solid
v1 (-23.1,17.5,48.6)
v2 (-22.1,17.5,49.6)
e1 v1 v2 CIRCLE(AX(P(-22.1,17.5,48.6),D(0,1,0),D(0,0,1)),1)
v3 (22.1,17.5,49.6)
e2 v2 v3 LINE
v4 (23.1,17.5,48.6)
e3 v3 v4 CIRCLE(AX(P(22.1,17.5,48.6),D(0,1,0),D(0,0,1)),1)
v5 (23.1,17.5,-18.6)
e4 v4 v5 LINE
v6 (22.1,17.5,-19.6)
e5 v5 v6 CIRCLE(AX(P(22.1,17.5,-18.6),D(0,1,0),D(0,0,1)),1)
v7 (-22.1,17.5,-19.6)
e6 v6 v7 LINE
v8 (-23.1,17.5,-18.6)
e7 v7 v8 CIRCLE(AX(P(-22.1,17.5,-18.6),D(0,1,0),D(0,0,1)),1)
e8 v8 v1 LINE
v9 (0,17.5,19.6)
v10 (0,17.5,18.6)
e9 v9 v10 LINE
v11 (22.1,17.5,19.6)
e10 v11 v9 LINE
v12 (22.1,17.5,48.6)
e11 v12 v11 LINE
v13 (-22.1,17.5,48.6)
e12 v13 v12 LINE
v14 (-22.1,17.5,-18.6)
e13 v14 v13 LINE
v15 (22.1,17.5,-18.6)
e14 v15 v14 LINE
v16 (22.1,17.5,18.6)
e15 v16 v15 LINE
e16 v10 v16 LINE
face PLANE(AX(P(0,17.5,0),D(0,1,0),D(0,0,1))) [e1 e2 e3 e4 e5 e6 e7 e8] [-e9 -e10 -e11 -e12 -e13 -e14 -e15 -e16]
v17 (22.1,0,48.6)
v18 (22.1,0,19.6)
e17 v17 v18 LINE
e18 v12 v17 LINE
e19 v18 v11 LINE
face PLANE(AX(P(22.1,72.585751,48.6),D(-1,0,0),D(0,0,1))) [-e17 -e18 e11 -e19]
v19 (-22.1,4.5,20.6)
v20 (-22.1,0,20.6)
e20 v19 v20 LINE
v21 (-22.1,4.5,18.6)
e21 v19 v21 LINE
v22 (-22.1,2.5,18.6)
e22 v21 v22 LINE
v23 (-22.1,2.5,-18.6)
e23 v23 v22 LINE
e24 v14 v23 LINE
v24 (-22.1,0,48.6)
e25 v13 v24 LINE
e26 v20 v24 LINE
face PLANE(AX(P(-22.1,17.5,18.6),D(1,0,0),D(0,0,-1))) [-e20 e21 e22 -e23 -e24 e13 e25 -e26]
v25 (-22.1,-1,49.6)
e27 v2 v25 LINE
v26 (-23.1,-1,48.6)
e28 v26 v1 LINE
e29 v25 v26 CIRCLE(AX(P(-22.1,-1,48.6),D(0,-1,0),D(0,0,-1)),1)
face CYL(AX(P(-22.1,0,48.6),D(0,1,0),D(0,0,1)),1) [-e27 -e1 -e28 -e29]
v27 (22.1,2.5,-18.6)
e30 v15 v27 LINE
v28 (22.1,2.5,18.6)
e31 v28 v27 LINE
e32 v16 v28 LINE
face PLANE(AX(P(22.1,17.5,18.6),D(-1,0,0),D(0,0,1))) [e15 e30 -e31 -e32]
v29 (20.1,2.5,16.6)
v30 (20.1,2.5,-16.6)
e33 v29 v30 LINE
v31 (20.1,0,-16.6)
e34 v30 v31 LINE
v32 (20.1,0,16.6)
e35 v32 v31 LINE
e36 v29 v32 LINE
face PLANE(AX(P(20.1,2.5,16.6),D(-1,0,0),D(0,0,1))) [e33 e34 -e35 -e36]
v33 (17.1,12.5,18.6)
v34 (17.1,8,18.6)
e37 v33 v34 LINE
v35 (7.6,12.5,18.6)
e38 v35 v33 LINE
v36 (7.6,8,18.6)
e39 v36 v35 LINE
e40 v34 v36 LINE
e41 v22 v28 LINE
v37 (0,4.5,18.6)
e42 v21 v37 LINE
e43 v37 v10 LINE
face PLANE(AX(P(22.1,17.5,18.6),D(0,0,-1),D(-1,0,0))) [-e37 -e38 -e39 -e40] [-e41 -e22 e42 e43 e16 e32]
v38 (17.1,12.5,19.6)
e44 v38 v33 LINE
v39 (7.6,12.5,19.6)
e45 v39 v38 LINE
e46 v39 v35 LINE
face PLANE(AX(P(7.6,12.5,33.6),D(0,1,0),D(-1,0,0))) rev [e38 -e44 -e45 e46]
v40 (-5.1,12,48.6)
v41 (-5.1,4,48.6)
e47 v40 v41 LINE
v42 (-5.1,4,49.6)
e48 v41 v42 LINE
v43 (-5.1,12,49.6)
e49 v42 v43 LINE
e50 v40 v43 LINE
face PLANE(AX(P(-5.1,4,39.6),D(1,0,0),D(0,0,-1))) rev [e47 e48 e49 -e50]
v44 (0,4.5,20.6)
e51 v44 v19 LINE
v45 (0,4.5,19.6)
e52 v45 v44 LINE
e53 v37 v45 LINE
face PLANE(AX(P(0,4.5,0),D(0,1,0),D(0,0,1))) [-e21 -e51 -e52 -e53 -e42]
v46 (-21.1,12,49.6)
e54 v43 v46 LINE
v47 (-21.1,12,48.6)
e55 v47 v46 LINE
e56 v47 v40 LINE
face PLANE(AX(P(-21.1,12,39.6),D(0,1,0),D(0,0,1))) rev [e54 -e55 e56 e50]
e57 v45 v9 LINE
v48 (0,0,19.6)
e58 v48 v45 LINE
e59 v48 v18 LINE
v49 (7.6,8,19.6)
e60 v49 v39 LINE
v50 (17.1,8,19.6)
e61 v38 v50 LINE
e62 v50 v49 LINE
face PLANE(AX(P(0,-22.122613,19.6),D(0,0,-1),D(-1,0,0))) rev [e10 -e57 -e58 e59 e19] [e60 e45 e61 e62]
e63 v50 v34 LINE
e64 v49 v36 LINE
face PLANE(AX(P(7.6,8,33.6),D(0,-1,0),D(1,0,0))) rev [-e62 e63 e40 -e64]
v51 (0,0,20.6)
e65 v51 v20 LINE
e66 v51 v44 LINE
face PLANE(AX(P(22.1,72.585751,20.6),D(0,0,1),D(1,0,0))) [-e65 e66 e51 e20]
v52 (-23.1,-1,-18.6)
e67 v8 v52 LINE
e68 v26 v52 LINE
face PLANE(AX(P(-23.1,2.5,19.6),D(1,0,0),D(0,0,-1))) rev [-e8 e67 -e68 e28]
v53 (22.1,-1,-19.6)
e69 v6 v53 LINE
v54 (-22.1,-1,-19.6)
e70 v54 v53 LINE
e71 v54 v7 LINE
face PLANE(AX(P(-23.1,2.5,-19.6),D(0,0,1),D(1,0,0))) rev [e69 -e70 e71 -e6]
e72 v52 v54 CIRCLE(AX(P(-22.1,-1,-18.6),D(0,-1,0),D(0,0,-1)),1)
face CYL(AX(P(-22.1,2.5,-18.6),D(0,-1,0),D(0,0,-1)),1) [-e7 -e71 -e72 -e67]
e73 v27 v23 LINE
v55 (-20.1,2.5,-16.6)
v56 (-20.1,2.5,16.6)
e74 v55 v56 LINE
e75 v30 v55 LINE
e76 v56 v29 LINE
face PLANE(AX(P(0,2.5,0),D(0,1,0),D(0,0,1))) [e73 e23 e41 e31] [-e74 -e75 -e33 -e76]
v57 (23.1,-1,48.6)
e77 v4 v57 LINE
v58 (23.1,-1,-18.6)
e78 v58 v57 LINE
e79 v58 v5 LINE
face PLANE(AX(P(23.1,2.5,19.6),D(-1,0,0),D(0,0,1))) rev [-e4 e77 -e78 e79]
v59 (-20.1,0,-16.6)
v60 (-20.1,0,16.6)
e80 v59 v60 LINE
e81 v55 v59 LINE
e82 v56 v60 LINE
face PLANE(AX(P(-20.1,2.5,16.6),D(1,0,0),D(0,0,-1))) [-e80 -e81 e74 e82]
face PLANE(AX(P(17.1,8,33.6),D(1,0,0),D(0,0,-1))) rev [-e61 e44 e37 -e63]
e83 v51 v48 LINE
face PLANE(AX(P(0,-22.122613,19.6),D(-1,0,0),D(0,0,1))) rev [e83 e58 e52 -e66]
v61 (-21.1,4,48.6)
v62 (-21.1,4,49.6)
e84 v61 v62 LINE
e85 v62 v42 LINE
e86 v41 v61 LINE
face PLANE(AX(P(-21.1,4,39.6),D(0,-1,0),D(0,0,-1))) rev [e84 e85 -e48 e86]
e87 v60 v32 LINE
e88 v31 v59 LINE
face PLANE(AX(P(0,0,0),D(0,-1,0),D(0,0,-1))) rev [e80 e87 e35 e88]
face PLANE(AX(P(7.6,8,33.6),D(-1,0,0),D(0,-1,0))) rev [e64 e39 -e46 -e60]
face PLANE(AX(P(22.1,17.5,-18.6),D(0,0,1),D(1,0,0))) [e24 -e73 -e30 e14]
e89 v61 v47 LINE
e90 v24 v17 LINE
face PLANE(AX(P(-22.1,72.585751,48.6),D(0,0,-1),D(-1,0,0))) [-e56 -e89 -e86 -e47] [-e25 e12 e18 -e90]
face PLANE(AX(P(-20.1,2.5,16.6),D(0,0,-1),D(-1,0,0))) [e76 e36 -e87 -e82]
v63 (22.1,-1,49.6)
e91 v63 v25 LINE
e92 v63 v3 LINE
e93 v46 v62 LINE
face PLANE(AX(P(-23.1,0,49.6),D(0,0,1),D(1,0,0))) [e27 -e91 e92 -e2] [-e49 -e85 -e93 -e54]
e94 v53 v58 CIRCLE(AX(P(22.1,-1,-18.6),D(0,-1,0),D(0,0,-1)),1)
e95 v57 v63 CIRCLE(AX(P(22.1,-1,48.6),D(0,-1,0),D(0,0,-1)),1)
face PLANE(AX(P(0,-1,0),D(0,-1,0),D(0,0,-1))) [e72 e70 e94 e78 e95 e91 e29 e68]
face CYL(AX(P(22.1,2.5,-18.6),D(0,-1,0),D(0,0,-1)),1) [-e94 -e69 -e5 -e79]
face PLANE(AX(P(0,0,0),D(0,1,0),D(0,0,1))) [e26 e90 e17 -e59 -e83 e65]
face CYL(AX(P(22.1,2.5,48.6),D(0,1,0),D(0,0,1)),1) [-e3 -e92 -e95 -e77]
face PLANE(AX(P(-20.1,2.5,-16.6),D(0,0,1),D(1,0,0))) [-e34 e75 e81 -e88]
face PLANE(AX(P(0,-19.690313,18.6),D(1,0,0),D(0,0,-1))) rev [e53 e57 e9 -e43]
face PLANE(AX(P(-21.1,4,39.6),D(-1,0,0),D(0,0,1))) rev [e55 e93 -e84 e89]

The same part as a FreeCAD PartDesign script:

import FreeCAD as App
import Part
import Sketcher
Q = App.Units.Quantity


def edges_at(feature, points):
    """Names of the edges that pass closest to the given points."""
    edges = feature.Shape.Edges
    near = lambda p: min(range(len(edges)), key=lambda i: edges[i].distToShape(Part.Vertex(*p))[0])
    return sorted({f"Edge{near(p) + 1}" for p in points})

doc = App.newDocument("Part")
params = doc.addObject("Spreadsheet::Sheet", "Params")
for row, (alias, value) in enumerate([
    ("sketch1_width", "46.2 mm"),
    ("sketch1_width2", "40.2 mm"),
    ("sketch1_height", "39.2 mm"),
    ("sketch1_height2", "33.2 mm"),
    ("pad1_length", "2.5 mm"),
    ("sketch2_width", "46.2 mm"),
    ("sketch2_height", "39.2 mm"),
    ("pad2_length", "1 mm"),
    ("sketch3_width", "46.2 mm"),
    ("sketch3_width2", "44.2 mm"),
    ("sketch3_height", "39.2 mm"),
    ("sketch3_height2", "37.2 mm"),
    ("pad3_length", "15 mm"),
    ("sketch4_width", "9.5 mm"),
    ("sketch4_height", "4.5 mm"),
    ("pocket1_length", "15 mm"),
    ("sketch5_height", "30 mm"),
    ("sketch5_width", "46.2 mm"),
    ("pad4_length", "1 mm"),
    ("sketch6_height", "30 mm"),
    ("sketch6_height2", "28 mm"),
    ("sketch6_width", "46.2 mm"),
    ("sketch6_width2", "44.2 mm"),
    ("pad5_length", "17.5 mm"),
    ("sketch7_height", "2 mm"),
    ("sketch7_width", "22.1 mm"),
    ("pocket2_length", "13 mm"),
    ("sketch8_height", "1 mm"),
    ("sketch8_width", "22.1 mm"),
    ("pocket3_length", "17.5 mm"),
    ("sketch9_width", "16 mm"),
    ("sketch9_height", "8 mm"),
    ("pocket4_length", "10 mm"),
    ("fillet_radius", "1 mm"),
], start=1):
    params.set(f"A{row}", alias)
    params.set(f"B{row}", "=" + value)
    params.setAlias(f"B{row}", alias)

body = doc.addObject("PartDesign::Body", "Body")

sketch1 = body.newObject("Sketcher::SketchObject", "Sketch")
sketch1.AttachmentSupport = (doc.getObject("XZ_Plane"), [""])
sketch1.MapMode = "FlatFace"
sketch1.addGeometry([
    Part.LineSegment(App.Vector(-23, -20, 0), App.Vector(-23, 20, 0)),
    Part.LineSegment(App.Vector(-23, 20, 0), App.Vector(23, 20, 0)),
    Part.LineSegment(App.Vector(23, 20, 0), App.Vector(23, -20, 0)),
    Part.LineSegment(App.Vector(23, -20, 0), App.Vector(-23, -20, 0)),
    Part.LineSegment(App.Vector(20, 17, 0), App.Vector(-20, 17, 0)),
    Part.LineSegment(App.Vector(-20, 17, 0), App.Vector(-20, -17, 0)),
    Part.LineSegment(App.Vector(-20, -17, 0), App.Vector(20, -17, 0)),
    Part.LineSegment(App.Vector(20, -17, 0), App.Vector(20, 17, 0)),
], False)
sketch1.addConstraint([
    Sketcher.Constraint("Coincident", 0, 2, 1, 1),
    Sketcher.Constraint("Coincident", 1, 2, 2, 1),
    Sketcher.Constraint("Coincident", 2, 2, 3, 1),
    Sketcher.Constraint("Coincident", 3, 2, 0, 1),
    Sketcher.Constraint("Coincident", 4, 2, 5, 1),
    Sketcher.Constraint("Coincident", 5, 2, 6, 1),
    Sketcher.Constraint("Coincident", 6, 2, 7, 1),
    Sketcher.Constraint("Coincident", 7, 2, 4, 1),
    Sketcher.Constraint("Vertical", 0),
    Sketcher.Constraint("Horizontal", 1),
    Sketcher.Constraint("Vertical", 2),
    Sketcher.Constraint("Horizontal", 3),
    Sketcher.Constraint("Horizontal", 4),
    Sketcher.Constraint("Vertical", 5),
    Sketcher.Constraint("Horizontal", 6),
    Sketcher.Constraint("Vertical", 7),
    Sketcher.Constraint("Symmetric", 0, 2, 2, 2, -1, 1),
    Sketcher.Constraint("Symmetric", 4, 2, 6, 2, -1, 1),
    Sketcher.Constraint("DistanceX", 1, 1, 1, 2, Q("46.2 mm")),
    Sketcher.Constraint("DistanceX", 4, 2, 4, 1, Q("40.2 mm")),
    Sketcher.Constraint("DistanceY", 0, 1, 0, 2, Q("39.2 mm")),
    Sketcher.Constraint("DistanceY", 5, 2, 5, 1, Q("33.2 mm")),
])
sketch1.setExpression("Constraints[18]", "Params.sketch1_width")
sketch1.setExpression("Constraints[19]", "Params.sketch1_width2")
sketch1.setExpression("Constraints[20]", "Params.sketch1_height")
sketch1.setExpression("Constraints[21]", "Params.sketch1_height2")
pad1 = body.newObject("PartDesign::Pad", "Pad")
pad1.Profile = sketch1
pad1.setExpression("Length", "Params.pad1_length")
pad1.Reversed = True

sketch2 = body.newObject("Sketcher::SketchObject", "Sketch001")
sketch2.AttachmentSupport = (doc.getObject("XZ_Plane"), [""])
sketch2.MapMode = "FlatFace"
sketch2.addGeometry([
    Part.LineSegment(App.Vector(-23, 20, 0), App.Vector(-23, -20, 0)),
    Part.LineSegment(App.Vector(-23, -20, 0), App.Vector(23, -20, 0)),
    Part.LineSegment(App.Vector(23, -20, 0), App.Vector(23, 20, 0)),
    Part.LineSegment(App.Vector(23, 20, 0), App.Vector(-23, 20, 0)),
], False)
sketch2.addConstraint([
    Sketcher.Constraint("Coincident", 0, 2, 1, 1),
    Sketcher.Constraint("Coincident", 1, 2, 2, 1),
    Sketcher.Constraint("Coincident", 2, 2, 3, 1),
    Sketcher.Constraint("Coincident", 3, 2, 0, 1),
    Sketcher.Constraint("Vertical", 0),
    Sketcher.Constraint("Horizontal", 1),
    Sketcher.Constraint("Vertical", 2),
    Sketcher.Constraint("Horizontal", 3),
    Sketcher.Constraint("Symmetric", 0, 2, 2, 2, -1, 1),
    Sketcher.Constraint("DistanceX", 1, 1, 1, 2, Q("46.2 mm")),
    Sketcher.Constraint("DistanceY", 0, 2, 0, 1, Q("39.2 mm")),
])
sketch2.setExpression("Constraints[9]", "Params.sketch2_width")
sketch2.setExpression("Constraints[10]", "Params.sketch2_height")
pad2 = body.newObject("PartDesign::Pad", "Pad001")
pad2.Profile = sketch2
pad2.setExpression("Length", "Params.pad2_length")

sketch3 = body.newObject("Sketcher::SketchObject", "Sketch002")
sketch3.AttachmentSupport = (doc.getObject("XZ_Plane"), [""])
sketch3.MapMode = "FlatFace"
sketch3.AttachmentOffset = App.Placement(App.Vector(0, 0, -2.5), App.Rotation())
sketch3.addGeometry([
    Part.LineSegment(App.Vector(-23, -20, 0), App.Vector(-23, 20, 0)),
    Part.LineSegment(App.Vector(-23, 20, 0), App.Vector(23, 20, 0)),
    Part.LineSegment(App.Vector(23, 20, 0), App.Vector(23, -20, 0)),
    Part.LineSegment(App.Vector(23, -20, 0), App.Vector(-23, -20, 0)),
    Part.LineSegment(App.Vector(22, 19, 0), App.Vector(-22, 19, 0)),
    Part.LineSegment(App.Vector(-22, 19, 0), App.Vector(-22, -19, 0)),
    Part.LineSegment(App.Vector(-22, -19, 0), App.Vector(22, -19, 0)),
    Part.LineSegment(App.Vector(22, -19, 0), App.Vector(22, 19, 0)),
], False)
sketch3.addConstraint([
    Sketcher.Constraint("Coincident", 0, 2, 1, 1),
    Sketcher.Constraint("Coincident", 1, 2, 2, 1),
    Sketcher.Constraint("Coincident", 2, 2, 3, 1),
    Sketcher.Constraint("Coincident", 3, 2, 0, 1),
    Sketcher.Constraint("Coincident", 4, 2, 5, 1),
    Sketcher.Constraint("Coincident", 5, 2, 6, 1),
    Sketcher.Constraint("Coincident", 6, 2, 7, 1),
    Sketcher.Constraint("Coincident", 7, 2, 4, 1),
    Sketcher.Constraint("Vertical", 0),
    Sketcher.Constraint("Horizontal", 1),
    Sketcher.Constraint("Vertical", 2),
    Sketcher.Constraint("Horizontal", 3),
    Sketcher.Constraint("Horizontal", 4),
    Sketcher.Constraint("Vertical", 5),
    Sketcher.Constraint("Horizontal", 6),
    Sketcher.Constraint("Vertical", 7),
    Sketcher.Constraint("Symmetric", 0, 2, 2, 2, -1, 1),
    Sketcher.Constraint("Symmetric", 4, 2, 6, 2, -1, 1),
    Sketcher.Constraint("DistanceX", 1, 1, 1, 2, Q("46.2 mm")),
    Sketcher.Constraint("DistanceX", 4, 2, 4, 1, Q("44.2 mm")),
    Sketcher.Constraint("DistanceY", 0, 1, 0, 2, Q("39.2 mm")),
    Sketcher.Constraint("DistanceY", 5, 2, 5, 1, Q("37.2 mm")),
])
sketch3.setExpression("Constraints[18]", "Params.sketch3_width")
sketch3.setExpression("Constraints[19]", "Params.sketch3_width2")
sketch3.setExpression("Constraints[20]", "Params.sketch3_height")
sketch3.setExpression("Constraints[21]", "Params.sketch3_height2")
pad3 = body.newObject("PartDesign::Pad", "Pad002")
pad3.Profile = sketch3
pad3.setExpression("Length", "Params.pad3_length")
pad3.Reversed = True

sketch4 = body.newObject("Sketcher::SketchObject", "Sketch003")
sketch4.AttachmentSupport = (doc.getObject("XY_Plane"), [""])
sketch4.MapMode = "FlatFace"
sketch4.AttachmentOffset = App.Placement(App.Vector(0, 0, 18.6), App.Rotation())
sketch4.addGeometry([
    Part.LineSegment(App.Vector(17.1, 12.5, 0), App.Vector(17.1, 8, 0)),
    Part.LineSegment(App.Vector(17.1, 8, 0), App.Vector(7.6, 8, 0)),
    Part.LineSegment(App.Vector(7.6, 8, 0), App.Vector(7.6, 12.5, 0)),
    Part.LineSegment(App.Vector(7.6, 12.5, 0), App.Vector(17.1, 12.5, 0)),
], False)
sketch4.addConstraint([
    Sketcher.Constraint("Coincident", 0, 2, 1, 1),
    Sketcher.Constraint("Coincident", 1, 2, 2, 1),
    Sketcher.Constraint("Coincident", 2, 2, 3, 1),
    Sketcher.Constraint("Coincident", 3, 2, 0, 1),
    Sketcher.Constraint("Vertical", 0),
    Sketcher.Constraint("Horizontal", 1),
    Sketcher.Constraint("Vertical", 2),
    Sketcher.Constraint("Horizontal", 3),
    Sketcher.Constraint("DistanceX", 1, 2, 1, 1, Q("9.5 mm")),
    Sketcher.Constraint("DistanceY", 0, 2, 0, 1, Q("4.5 mm")),
    Sketcher.Constraint("DistanceY", -1, 1, 0, 2, Q("8 mm")),
    Sketcher.Constraint("DistanceX", -1, 1, 0, 2, Q("17.1 mm")),
])
sketch4.setExpression("Constraints[8]", "Params.sketch4_width")
sketch4.setExpression("Constraints[9]", "Params.sketch4_height")
pocket1 = body.newObject("PartDesign::Pocket", "Pocket")
pocket1.Profile = sketch4
pocket1.setExpression("Length", "Params.pocket1_length")
pocket1.Reversed = True

sketch5 = body.newObject("Sketcher::SketchObject", "Sketch004")
sketch5.AttachmentSupport = (doc.getObject("XZ_Plane"), [""])
sketch5.MapMode = "FlatFace"
sketch5.AttachmentOffset = App.Placement(App.Vector(0, 0, 1), App.Rotation())
sketch5.addGeometry([
    Part.LineSegment(App.Vector(-23, 50, 0), App.Vector(-23, 20, 0)),
    Part.LineSegment(App.Vector(-23, 20, 0), App.Vector(23, 20, 0)),
    Part.LineSegment(App.Vector(23, 20, 0), App.Vector(23, 50, 0)),
    Part.LineSegment(App.Vector(23, 50, 0), App.Vector(-23, 50, 0)),
], False)
sketch5.addConstraint([
    Sketcher.Constraint("Coincident", 0, 2, 1, 1),
    Sketcher.Constraint("Coincident", 1, 2, 2, 1),
    Sketcher.Constraint("Coincident", 2, 2, 3, 1),
    Sketcher.Constraint("Coincident", 3, 2, 0, 1),
    Sketcher.Constraint("Vertical", 0),
    Sketcher.Constraint("Horizontal", 1),
    Sketcher.Constraint("Vertical", 2),
    Sketcher.Constraint("Horizontal", 3),
    Sketcher.Constraint("DistanceY", 0, 2, 0, 1, Q("30 mm")),
    Sketcher.Constraint("DistanceX", 1, 1, 1, 2, Q("46.2 mm")),
    Sketcher.Constraint("DistanceX", 0, 2, -1, 1, Q("23.1 mm")),
    Sketcher.Constraint("DistanceY", -1, 1, 0, 2, Q("19.6 mm")),
])
sketch5.setExpression("Constraints[8]", "Params.sketch5_height")
sketch5.setExpression("Constraints[9]", "Params.sketch5_width")
pad4 = body.newObject("PartDesign::Pad", "Pad003")
pad4.Profile = sketch5
pad4.setExpression("Length", "Params.pad4_length")
pad4.Reversed = True

sketch6 = body.newObject("Sketcher::SketchObject", "Sketch005")
sketch6.AttachmentSupport = (doc.getObject("XZ_Plane"), [""])
sketch6.MapMode = "FlatFace"
sketch6.addGeometry([
    Part.LineSegment(App.Vector(-23, 20, 0), App.Vector(-23, 50, 0)),
    Part.LineSegment(App.Vector(-23, 50, 0), App.Vector(23, 50, 0)),
    Part.LineSegment(App.Vector(23, 50, 0), App.Vector(23, 20, 0)),
    Part.LineSegment(App.Vector(23, 20, 0), App.Vector(-23, 20, 0)),
    Part.LineSegment(App.Vector(22, 49, 0), App.Vector(-22, 49, 0)),
    Part.LineSegment(App.Vector(-22, 49, 0), App.Vector(-22, 21, 0)),
    Part.LineSegment(App.Vector(-22, 21, 0), App.Vector(22, 21, 0)),
    Part.LineSegment(App.Vector(22, 21, 0), App.Vector(22, 49, 0)),
], False)
sketch6.addConstraint([
    Sketcher.Constraint("Coincident", 0, 2, 1, 1),
    Sketcher.Constraint("Coincident", 1, 2, 2, 1),
    Sketcher.Constraint("Coincident", 2, 2, 3, 1),
    Sketcher.Constraint("Coincident", 3, 2, 0, 1),
    Sketcher.Constraint("Coincident", 4, 2, 5, 1),
    Sketcher.Constraint("Coincident", 5, 2, 6, 1),
    Sketcher.Constraint("Coincident", 6, 2, 7, 1),
    Sketcher.Constraint("Coincident", 7, 2, 4, 1),
    Sketcher.Constraint("Vertical", 0),
    Sketcher.Constraint("Horizontal", 1),
    Sketcher.Constraint("Vertical", 2),
    Sketcher.Constraint("Horizontal", 3),
    Sketcher.Constraint("Horizontal", 4),
    Sketcher.Constraint("Vertical", 5),
    Sketcher.Constraint("Horizontal", 6),
    Sketcher.Constraint("Vertical", 7),
    Sketcher.Constraint("DistanceY", 0, 1, 0, 2, Q("30 mm")),
    Sketcher.Constraint("DistanceY", 5, 2, 5, 1, Q("28 mm")),
    Sketcher.Constraint("DistanceX", 1, 1, 1, 2, Q("46.2 mm")),
    Sketcher.Constraint("DistanceX", 4, 2, 4, 1, Q("44.2 mm")),
    Sketcher.Constraint("DistanceX", 0, 2, 4, 2, Q("1 mm")),
    Sketcher.Constraint("DistanceY", 4, 2, 0, 2, Q("1 mm")),
    Sketcher.Constraint("DistanceX", 0, 2, -1, 1, Q("23.1 mm")),
    Sketcher.Constraint("DistanceY", -1, 1, 0, 2, Q("49.6 mm")),
])
sketch6.setExpression("Constraints[16]", "Params.sketch6_height")
sketch6.setExpression("Constraints[17]", "Params.sketch6_height2")
sketch6.setExpression("Constraints[18]", "Params.sketch6_width")
sketch6.setExpression("Constraints[19]", "Params.sketch6_width2")
pad5 = body.newObject("PartDesign::Pad", "Pad004")
pad5.Profile = sketch6
pad5.setExpression("Length", "Params.pad5_length")
pad5.Reversed = True

sketch7 = body.newObject("Sketcher::SketchObject", "Sketch006")
sketch7.AttachmentSupport = (doc.getObject("XZ_Plane"), [""])
sketch7.MapMode = "FlatFace"
sketch7.AttachmentOffset = App.Placement(App.Vector(0, 0, -17.5), App.Rotation())
sketch7.addGeometry([
    Part.LineSegment(App.Vector(-22.1, 18.6, 0), App.Vector(-22.1, 20.6, 0)),
    Part.LineSegment(App.Vector(-22.1, 20.6, 0), App.Vector(0, 20.6, 0)),
    Part.LineSegment(App.Vector(0, 20.6, 0), App.Vector(0, 18.6, 0)),
    Part.LineSegment(App.Vector(0, 18.6, 0), App.Vector(-22.1, 18.6, 0)),
], False)
sketch7.addConstraint([
    Sketcher.Constraint("Coincident", 0, 2, 1, 1),
    Sketcher.Constraint("Coincident", 1, 2, 2, 1),
    Sketcher.Constraint("Coincident", 2, 2, 3, 1),
    Sketcher.Constraint("Coincident", 3, 2, 0, 1),
    Sketcher.Constraint("Vertical", 0),
    Sketcher.Constraint("Horizontal", 1),
    Sketcher.Constraint("Vertical", 2),
    Sketcher.Constraint("Horizontal", 3),
    Sketcher.Constraint("PointOnObject", 1, 2, -2),
    Sketcher.Constraint("DistanceY", 0, 1, 0, 2, Q("2 mm")),
    Sketcher.Constraint("DistanceX", 1, 1, 1, 2, Q("22.1 mm")),
    Sketcher.Constraint("DistanceY", -1, 1, 0, 2, Q("20.6 mm")),
])
sketch7.setExpression("Constraints[9]", "Params.sketch7_height")
sketch7.setExpression("Constraints[10]", "Params.sketch7_width")
pocket2 = body.newObject("PartDesign::Pocket", "Pocket001")
pocket2.Profile = sketch7
pocket2.setExpression("Length", "Params.pocket2_length")
pocket2.Reversed = True

sketch8 = body.newObject("Sketcher::SketchObject", "Sketch007")
sketch8.AttachmentSupport = (doc.getObject("XZ_Plane"), [""])
sketch8.MapMode = "FlatFace"
sketch8.AttachmentOffset = App.Placement(App.Vector(0, 0, -17.5), App.Rotation())
sketch8.addGeometry([
    Part.LineSegment(App.Vector(0, 19.6, 0), App.Vector(0, 20.6, 0)),
    Part.LineSegment(App.Vector(0, 20.6, 0), App.Vector(22.1, 20.6, 0)),
    Part.LineSegment(App.Vector(22.1, 20.6, 0), App.Vector(22.1, 19.6, 0)),
    Part.LineSegment(App.Vector(22.1, 19.6, 0), App.Vector(0, 19.6, 0)),
], False)
sketch8.addConstraint([
    Sketcher.Constraint("Coincident", 0, 2, 1, 1),
    Sketcher.Constraint("Coincident", 1, 2, 2, 1),
    Sketcher.Constraint("Coincident", 2, 2, 3, 1),
    Sketcher.Constraint("Coincident", 3, 2, 0, 1),
    Sketcher.Constraint("Vertical", 0),
    Sketcher.Constraint("Horizontal", 1),
    Sketcher.Constraint("Vertical", 2),
    Sketcher.Constraint("Horizontal", 3),
    Sketcher.Constraint("PointOnObject", 0, 2, -2),
    Sketcher.Constraint("DistanceY", 0, 1, 0, 2, Q("1 mm")),
    Sketcher.Constraint("DistanceX", 1, 1, 1, 2, Q("22.1 mm")),
    Sketcher.Constraint("DistanceY", -1, 1, 0, 2, Q("20.6 mm")),
])
sketch8.setExpression("Constraints[9]", "Params.sketch8_height")
sketch8.setExpression("Constraints[10]", "Params.sketch8_width")
pocket3 = body.newObject("PartDesign::Pocket", "Pocket002")
pocket3.Profile = sketch8
pocket3.setExpression("Length", "Params.pocket3_length")
pocket3.Reversed = True

sketch9 = body.newObject("Sketcher::SketchObject", "Sketch008")
sketch9.AttachmentSupport = (doc.getObject("XY_Plane"), [""])
sketch9.MapMode = "FlatFace"
sketch9.AttachmentOffset = App.Placement(App.Vector(0, 0, 49.6), App.Rotation())
sketch9.addGeometry([
    Part.LineSegment(App.Vector(-21, 12, 0), App.Vector(-21, 4, 0)),
    Part.LineSegment(App.Vector(-21, 4, 0), App.Vector(-5, 4, 0)),
    Part.LineSegment(App.Vector(-5, 4, 0), App.Vector(-5, 12, 0)),
    Part.LineSegment(App.Vector(-5, 12, 0), App.Vector(-21, 12, 0)),
], False)
sketch9.addConstraint([
    Sketcher.Constraint("Coincident", 0, 2, 1, 1),
    Sketcher.Constraint("Coincident", 1, 2, 2, 1),
    Sketcher.Constraint("Coincident", 2, 2, 3, 1),
    Sketcher.Constraint("Coincident", 3, 2, 0, 1),
    Sketcher.Constraint("Vertical", 0),
    Sketcher.Constraint("Horizontal", 1),
    Sketcher.Constraint("Vertical", 2),
    Sketcher.Constraint("Horizontal", 3),
    Sketcher.Constraint("DistanceX", 1, 1, 1, 2, Q("16 mm")),
    Sketcher.Constraint("DistanceY", 0, 2, 0, 1, Q("8 mm")),
    Sketcher.Constraint("DistanceY", -1, 1, 0, 2, Q("4 mm")),
    Sketcher.Constraint("DistanceX", 0, 2, -1, 1, Q("21.1 mm")),
])
sketch9.setExpression("Constraints[8]", "Params.sketch9_width")
sketch9.setExpression("Constraints[9]", "Params.sketch9_height")
pocket4 = body.newObject("PartDesign::Pocket", "Pocket003")
pocket4.Profile = sketch9
pocket4.setExpression("Length", "Params.pocket4_length")
doc.recompute()

fillet = body.newObject("PartDesign::Fillet", "Fillet")
fillet.Base = (pocket4, edges_at(pocket4, [
    (-23.1, 8.25, -19.6),
    (23.1, 8.25, -19.6),
    (-23.1, 8.25, 49.6),
    (23.1, 8.25, 49.6),
]))
fillet.setExpression("Radius", "Params.fillet_radius")

doc.recompute()
